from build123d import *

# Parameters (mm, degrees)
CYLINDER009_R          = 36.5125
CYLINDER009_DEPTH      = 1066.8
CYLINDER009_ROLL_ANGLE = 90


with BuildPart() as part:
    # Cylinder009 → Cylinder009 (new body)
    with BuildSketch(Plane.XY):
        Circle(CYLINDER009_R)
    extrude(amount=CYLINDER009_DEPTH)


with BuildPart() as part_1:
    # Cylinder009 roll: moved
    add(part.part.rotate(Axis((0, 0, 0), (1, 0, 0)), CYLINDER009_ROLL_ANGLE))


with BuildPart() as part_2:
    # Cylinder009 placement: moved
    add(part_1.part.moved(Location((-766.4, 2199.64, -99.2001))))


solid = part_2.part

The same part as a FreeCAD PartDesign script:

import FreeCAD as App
import Part
import Sketcher
Q = App.Units.Quantity

doc = App.newDocument("Part")
body = doc.addObject("PartDesign::Body", "Body")

sketch1 = body.newObject("Sketcher::SketchObject", "Sketch")
sketch1.AttachmentSupport = (doc.getObject("XY_Plane"), [""])
sketch1.MapMode = "FlatFace"
sketch1.addGeometry(Part.Circle(App.Vector(0, 0, 0), App.Vector(0, 0, 1), 37), False)
sketch1.addConstraint([
    Sketcher.Constraint("Coincident", 0, 3, -1, 1),
    Sketcher.Constraint("Diameter", 0, Q("2.875 in")),
])
pad1 = body.newObject("PartDesign::Pad", "Pad")
pad1.Profile = sketch1
pad1.Length = Q("42 in")
body2 = doc.addObject("PartDesign::Body", "Body001")
doc.recompute()

body.Placement = App.Placement(App.Vector(0, 0, 0), App.Rotation(App.Vector(1, 0, 0), 90))
boolean = body2.newObject("PartDesign::Boolean", "Boolean")
boolean.Type = "Fuse"
boolean.addObjects([body])
body3 = doc.addObject("PartDesign::Body", "Body002")
doc.recompute()

body2.Placement = App.Placement(App.Vector(-766.4, 2199.64, -99.2001), App.Rotation(App.Vector(0, 0, 1), 0))
boolean2 = body3.newObject("PartDesign::Boolean", "Boolean001")
boolean2.Type = "Fuse"
boolean2.addObjects([body2])

doc.recompute()
